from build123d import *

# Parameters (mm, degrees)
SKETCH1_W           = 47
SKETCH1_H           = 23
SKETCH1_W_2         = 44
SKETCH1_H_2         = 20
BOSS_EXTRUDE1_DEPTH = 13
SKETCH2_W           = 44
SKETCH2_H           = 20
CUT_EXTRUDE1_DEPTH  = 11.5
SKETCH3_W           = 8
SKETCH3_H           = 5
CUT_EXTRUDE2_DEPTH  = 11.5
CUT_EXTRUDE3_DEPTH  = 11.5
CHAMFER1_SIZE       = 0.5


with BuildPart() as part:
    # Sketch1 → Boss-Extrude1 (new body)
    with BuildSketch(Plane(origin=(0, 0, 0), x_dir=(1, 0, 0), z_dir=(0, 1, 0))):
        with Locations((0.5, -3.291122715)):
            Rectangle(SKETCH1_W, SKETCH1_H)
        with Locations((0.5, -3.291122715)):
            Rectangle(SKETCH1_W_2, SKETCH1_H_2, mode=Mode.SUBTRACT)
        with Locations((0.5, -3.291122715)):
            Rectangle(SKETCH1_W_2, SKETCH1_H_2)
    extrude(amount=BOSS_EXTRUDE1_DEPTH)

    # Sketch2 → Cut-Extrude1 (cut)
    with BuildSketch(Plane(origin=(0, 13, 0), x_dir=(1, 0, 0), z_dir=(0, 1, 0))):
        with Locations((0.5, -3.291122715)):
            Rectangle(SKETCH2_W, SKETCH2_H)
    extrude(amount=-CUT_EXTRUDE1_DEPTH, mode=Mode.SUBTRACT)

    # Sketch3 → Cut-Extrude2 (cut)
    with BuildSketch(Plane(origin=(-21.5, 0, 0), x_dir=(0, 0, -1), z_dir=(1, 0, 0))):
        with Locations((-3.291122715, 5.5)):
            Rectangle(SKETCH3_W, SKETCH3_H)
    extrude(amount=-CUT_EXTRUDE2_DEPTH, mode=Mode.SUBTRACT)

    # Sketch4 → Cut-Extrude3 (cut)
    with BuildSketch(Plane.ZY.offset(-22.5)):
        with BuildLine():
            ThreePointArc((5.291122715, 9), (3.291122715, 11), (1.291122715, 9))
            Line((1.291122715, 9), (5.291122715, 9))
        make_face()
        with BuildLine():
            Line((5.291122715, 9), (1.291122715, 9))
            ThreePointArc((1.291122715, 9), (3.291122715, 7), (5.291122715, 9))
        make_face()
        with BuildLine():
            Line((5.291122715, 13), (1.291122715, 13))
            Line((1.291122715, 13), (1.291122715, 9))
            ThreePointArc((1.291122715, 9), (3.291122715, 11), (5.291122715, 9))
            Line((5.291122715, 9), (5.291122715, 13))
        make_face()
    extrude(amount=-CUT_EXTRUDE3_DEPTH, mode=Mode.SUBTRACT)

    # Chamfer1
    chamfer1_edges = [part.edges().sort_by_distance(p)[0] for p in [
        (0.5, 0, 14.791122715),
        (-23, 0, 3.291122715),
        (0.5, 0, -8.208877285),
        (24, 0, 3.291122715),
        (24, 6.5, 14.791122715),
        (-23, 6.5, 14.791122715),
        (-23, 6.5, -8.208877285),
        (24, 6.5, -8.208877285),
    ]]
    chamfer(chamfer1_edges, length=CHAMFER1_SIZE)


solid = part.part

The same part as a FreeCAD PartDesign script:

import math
import FreeCAD as App
import Part
import Sketcher


def edges_at(feature, points):
    """Names of the edges that pass closest to the given points."""
    edges = feature.Shape.Edges
    near = lambda p: min(range(len(edges)), key=lambda i: edges[i].distToShape(Part.Vertex(*p))[0])
    return sorted({f"Edge{near(p) + 1}" for p in points})

doc = App.newDocument("Part")
body = doc.addObject("PartDesign::Body", "Body")

# Sketch on XZ plane
sketch1 = doc.addObject("Sketcher::SketchObject", "Sketch")
body.addObject(sketch1)
sketch1.AttachmentSupport = (doc.XZ_Plane, [""])
sketch1.MapMode = "FlatFace"
sketch1.addGeometry(Part.LineSegment(App.Vector(-23, -8, 0), App.Vector(-23, 15, 0)), False)
sketch1.addGeometry(Part.LineSegment(App.Vector(-23, 15, 0), App.Vector(24, 15, 0)), False)
sketch1.addGeometry(Part.LineSegment(App.Vector(24, 15, 0), App.Vector(24, -8, 0)), False)
sketch1.addGeometry(Part.LineSegment(App.Vector(24, -8, 0), App.Vector(-23, -8, 0)), False)
sketch1.addConstraint(Sketcher.Constraint("Coincident", 0, 2, 1, 1))
sketch1.addConstraint(Sketcher.Constraint("Coincident", 1, 2, 2, 1))
sketch1.addConstraint(Sketcher.Constraint("Coincident", 2, 2, 3, 1))
sketch1.addConstraint(Sketcher.Constraint("Coincident", 3, 2, 0, 1))
sketch1.addConstraint(Sketcher.Constraint("Vertical", 0))
sketch1.addConstraint(Sketcher.Constraint("Horizontal", 1))
sketch1.addConstraint(Sketcher.Constraint("Vertical", 2))
sketch1.addConstraint(Sketcher.Constraint("Horizontal", 3))
sketch1.addConstraint(Sketcher.Constraint("DistanceX", 1, 1, 1, 2, 47.0))
sketch1.addConstraint(Sketcher.Constraint("DistanceY", 0, 1, 0, 2, 23.0))
sketch1.addConstraint(Sketcher.Constraint("DistanceX", 0, 2, -1, 1, 23.0))
sketch1.addConstraint(Sketcher.Constraint("DistanceY", -1, 1, 0, 2, 14.791123))
pad1 = doc.addObject("PartDesign::Pad", "Pad")
body.addObject(pad1)
pad1.Profile = sketch1
pad1.Length = 13
pad1.Reversed = True

# Sketch on XZ plane
sketch2 = doc.addObject("Sketcher::SketchObject", "Sketch001")
body.addObject(sketch2)
sketch2.AttachmentSupport = (doc.XZ_Plane, [""])
sketch2.MapMode = "FlatFace"
sketch2.AttachmentOffset = App.Placement(App.Vector(0, 0, -13), App.Rotation())
sketch2.addGeometry(Part.LineSegment(App.Vector(-22, -7, 0), App.Vector(-22, 13, 0)), False)
sketch2.addGeometry(Part.LineSegment(App.Vector(-22, 13, 0), App.Vector(22, 13, 0)), False)
sketch2.addGeometry(Part.LineSegment(App.Vector(22, 13, 0), App.Vector(22, -7, 0)), False)
sketch2.addGeometry(Part.LineSegment(App.Vector(22, -7, 0), App.Vector(-22, -7, 0)), False)
sketch2.addConstraint(Sketcher.Constraint("Coincident", 0, 2, 1, 1))
sketch2.addConstraint(Sketcher.Constraint("Coincident", 1, 2, 2, 1))
sketch2.addConstraint(Sketcher.Constraint("Coincident", 2, 2, 3, 1))
sketch2.addConstraint(Sketcher.Constraint("Coincident", 3, 2, 0, 1))
sketch2.addConstraint(Sketcher.Constraint("Vertical", 0))
sketch2.addConstraint(Sketcher.Constraint("Horizontal", 1))
sketch2.addConstraint(Sketcher.Constraint("Vertical", 2))
sketch2.addConstraint(Sketcher.Constraint("Horizontal", 3))
sketch2.addConstraint(Sketcher.Constraint("DistanceX", 1, 1, 1, 2, 44.0))
sketch2.addConstraint(Sketcher.Constraint("DistanceY", 0, 1, 0, 2, 20.0))
sketch2.addConstraint(Sketcher.Constraint("DistanceX", 0, 2, -1, 1, 21.5))
sketch2.addConstraint(Sketcher.Constraint("DistanceY", -1, 1, 0, 2, 13.291123))
pocket1 = doc.addObject("PartDesign::Pocket", "Pocket")
body.addObject(pocket1)
pocket1.Profile = sketch2
pocket1.Length = 11.5
pocket1.Reversed = True

# Sketch on YZ plane
sketch3 = doc.addObject("Sketcher::SketchObject", "Sketch002")
body.addObject(sketch3)
sketch3.AttachmentSupport = (doc.YZ_Plane, [""])
sketch3.MapMode = "FlatFace"
sketch3.AttachmentOffset = App.Placement(App.Vector(0, 0, -21.5), App.Rotation())
sketch3.addGeometry(Part.LineSegment(App.Vector(8, 7, 0), App.Vector(3, 7, 0)), False)
sketch3.addGeometry(Part.LineSegment(App.Vector(3, 7, 0), App.Vector(3, -1, 0)), False)
sketch3.addGeometry(Part.LineSegment(App.Vector(3, -1, 0), App.Vector(8, -1, 0)), False)
sketch3.addGeometry(Part.LineSegment(App.Vector(8, -1, 0), App.Vector(8, 7, 0)), False)
sketch3.addConstraint(Sketcher.Constraint("Coincident", 0, 2, 1, 1))
sketch3.addConstraint(Sketcher.Constraint("Coincident", 1, 2, 2, 1))
sketch3.addConstraint(Sketcher.Constraint("Coincident", 2, 2, 3, 1))
sketch3.addConstraint(Sketcher.Constraint("Coincident", 3, 2, 0, 1))
sketch3.addConstraint(Sketcher.Constraint("Horizontal", 0))
sketch3.addConstraint(Sketcher.Constraint("Vertical", 1))
sketch3.addConstraint(Sketcher.Constraint("Horizontal", 2))
sketch3.addConstraint(Sketcher.Constraint("Vertical", 3))
sketch3.addConstraint(Sketcher.Constraint("DistanceX", 0, 2, 0, 1, 5.0))
sketch3.addConstraint(Sketcher.Constraint("DistanceY", 1, 2, 1, 1, 8.0))
sketch3.addConstraint(Sketcher.Constraint("DistanceX", -1, 1, 0, 2, 3.0))
sketch3.addConstraint(Sketcher.Constraint("DistanceY", -1, 1, 0, 2, 7.291123))
pocket2 = doc.addObject("PartDesign::Pocket", "Pocket001")
body.addObject(pocket2)
pocket2.Profile = sketch3
pocket2.Length = 11.5

# Sketch on YZ plane
sketch4 = doc.addObject("Sketcher::SketchObject", "Sketch003")
body.addObject(sketch4)
sketch4.AttachmentSupport = (doc.YZ_Plane, [""])
sketch4.MapMode = "FlatFace"
sketch4.AttachmentOffset = App.Placement(App.Vector(0, 0, 22.5), App.Rotation())
sketch4.addGeometry(Part.ArcOfCircle(Part.Circle(App.Vector(9, 3.3, 0), App.Vector(0, 0, 1), 2), math.radians(90), math.radians(270)), False)
sketch4.addGeometry(Part.LineSegment(App.Vector(9, 5.3, 0), App.Vector(13, 5.3, 0)), False)
sketch4.addGeometry(Part.LineSegment(App.Vector(13, 5.3, 0), App.Vector(13, 1.3, 0)), False)
sketch4.addGeometry(Part.LineSegment(App.Vector(13, 1.3, 0), App.Vector(9, 1.3, 0)), False)
sketch4.addConstraint(Sketcher.Constraint("Tangent", 0, 1, 1, 1))
sketch4.addConstraint(Sketcher.Constraint("Coincident", 1, 2, 2, 1))
sketch4.addConstraint(Sketcher.Constraint("Coincident", 2, 2, 3, 1))
sketch4.addConstraint(Sketcher.Constraint("Tangent", 3, 2, 0, 2))
sketch4.addConstraint(Sketcher.Constraint("Horizontal", 1))
sketch4.addConstraint(Sketcher.Constraint("Vertical", 2))
sketch4.addConstraint(Sketcher.Constraint("Horizontal", 3))
sketch4.addConstraint(Sketcher.Constraint("Equal", 3, 2))
sketch4.addConstraint(Sketcher.Constraint("Radius", 0, 2.0))
sketch4.addConstraint(Sketcher.Constraint("DistanceX", -1, 1, 0, 3, 9.0))
sketch4.addConstraint(Sketcher.Constraint("DistanceY", -1, 1, 0, 3, 3.291123))
pocket3 = doc.addObject("PartDesign::Pocket", "Pocket002")
body.addObject(pocket3)
pocket3.Profile = sketch4
pocket3.Length = 11.5
pocket3.Reversed = True
doc.recompute()

chamfer = doc.addObject("PartDesign::Chamfer", "Chamfer")
body.addObject(chamfer)
chamfer.Base = (pocket3, edges_at(pocket3, [
    (0.5, 0, 14.791),
    (-23, 0, 3.291),
    (0.5, 0, -8.209),
    (24, 0, 3.291),
    (24, 6.5, 14.791),
    (-23, 6.5, 14.791),
    (-23, 6.5, -8.209),
    (24, 6.5, -8.209),
]))
chamfer.Size = 0.5

doc.recompute()
